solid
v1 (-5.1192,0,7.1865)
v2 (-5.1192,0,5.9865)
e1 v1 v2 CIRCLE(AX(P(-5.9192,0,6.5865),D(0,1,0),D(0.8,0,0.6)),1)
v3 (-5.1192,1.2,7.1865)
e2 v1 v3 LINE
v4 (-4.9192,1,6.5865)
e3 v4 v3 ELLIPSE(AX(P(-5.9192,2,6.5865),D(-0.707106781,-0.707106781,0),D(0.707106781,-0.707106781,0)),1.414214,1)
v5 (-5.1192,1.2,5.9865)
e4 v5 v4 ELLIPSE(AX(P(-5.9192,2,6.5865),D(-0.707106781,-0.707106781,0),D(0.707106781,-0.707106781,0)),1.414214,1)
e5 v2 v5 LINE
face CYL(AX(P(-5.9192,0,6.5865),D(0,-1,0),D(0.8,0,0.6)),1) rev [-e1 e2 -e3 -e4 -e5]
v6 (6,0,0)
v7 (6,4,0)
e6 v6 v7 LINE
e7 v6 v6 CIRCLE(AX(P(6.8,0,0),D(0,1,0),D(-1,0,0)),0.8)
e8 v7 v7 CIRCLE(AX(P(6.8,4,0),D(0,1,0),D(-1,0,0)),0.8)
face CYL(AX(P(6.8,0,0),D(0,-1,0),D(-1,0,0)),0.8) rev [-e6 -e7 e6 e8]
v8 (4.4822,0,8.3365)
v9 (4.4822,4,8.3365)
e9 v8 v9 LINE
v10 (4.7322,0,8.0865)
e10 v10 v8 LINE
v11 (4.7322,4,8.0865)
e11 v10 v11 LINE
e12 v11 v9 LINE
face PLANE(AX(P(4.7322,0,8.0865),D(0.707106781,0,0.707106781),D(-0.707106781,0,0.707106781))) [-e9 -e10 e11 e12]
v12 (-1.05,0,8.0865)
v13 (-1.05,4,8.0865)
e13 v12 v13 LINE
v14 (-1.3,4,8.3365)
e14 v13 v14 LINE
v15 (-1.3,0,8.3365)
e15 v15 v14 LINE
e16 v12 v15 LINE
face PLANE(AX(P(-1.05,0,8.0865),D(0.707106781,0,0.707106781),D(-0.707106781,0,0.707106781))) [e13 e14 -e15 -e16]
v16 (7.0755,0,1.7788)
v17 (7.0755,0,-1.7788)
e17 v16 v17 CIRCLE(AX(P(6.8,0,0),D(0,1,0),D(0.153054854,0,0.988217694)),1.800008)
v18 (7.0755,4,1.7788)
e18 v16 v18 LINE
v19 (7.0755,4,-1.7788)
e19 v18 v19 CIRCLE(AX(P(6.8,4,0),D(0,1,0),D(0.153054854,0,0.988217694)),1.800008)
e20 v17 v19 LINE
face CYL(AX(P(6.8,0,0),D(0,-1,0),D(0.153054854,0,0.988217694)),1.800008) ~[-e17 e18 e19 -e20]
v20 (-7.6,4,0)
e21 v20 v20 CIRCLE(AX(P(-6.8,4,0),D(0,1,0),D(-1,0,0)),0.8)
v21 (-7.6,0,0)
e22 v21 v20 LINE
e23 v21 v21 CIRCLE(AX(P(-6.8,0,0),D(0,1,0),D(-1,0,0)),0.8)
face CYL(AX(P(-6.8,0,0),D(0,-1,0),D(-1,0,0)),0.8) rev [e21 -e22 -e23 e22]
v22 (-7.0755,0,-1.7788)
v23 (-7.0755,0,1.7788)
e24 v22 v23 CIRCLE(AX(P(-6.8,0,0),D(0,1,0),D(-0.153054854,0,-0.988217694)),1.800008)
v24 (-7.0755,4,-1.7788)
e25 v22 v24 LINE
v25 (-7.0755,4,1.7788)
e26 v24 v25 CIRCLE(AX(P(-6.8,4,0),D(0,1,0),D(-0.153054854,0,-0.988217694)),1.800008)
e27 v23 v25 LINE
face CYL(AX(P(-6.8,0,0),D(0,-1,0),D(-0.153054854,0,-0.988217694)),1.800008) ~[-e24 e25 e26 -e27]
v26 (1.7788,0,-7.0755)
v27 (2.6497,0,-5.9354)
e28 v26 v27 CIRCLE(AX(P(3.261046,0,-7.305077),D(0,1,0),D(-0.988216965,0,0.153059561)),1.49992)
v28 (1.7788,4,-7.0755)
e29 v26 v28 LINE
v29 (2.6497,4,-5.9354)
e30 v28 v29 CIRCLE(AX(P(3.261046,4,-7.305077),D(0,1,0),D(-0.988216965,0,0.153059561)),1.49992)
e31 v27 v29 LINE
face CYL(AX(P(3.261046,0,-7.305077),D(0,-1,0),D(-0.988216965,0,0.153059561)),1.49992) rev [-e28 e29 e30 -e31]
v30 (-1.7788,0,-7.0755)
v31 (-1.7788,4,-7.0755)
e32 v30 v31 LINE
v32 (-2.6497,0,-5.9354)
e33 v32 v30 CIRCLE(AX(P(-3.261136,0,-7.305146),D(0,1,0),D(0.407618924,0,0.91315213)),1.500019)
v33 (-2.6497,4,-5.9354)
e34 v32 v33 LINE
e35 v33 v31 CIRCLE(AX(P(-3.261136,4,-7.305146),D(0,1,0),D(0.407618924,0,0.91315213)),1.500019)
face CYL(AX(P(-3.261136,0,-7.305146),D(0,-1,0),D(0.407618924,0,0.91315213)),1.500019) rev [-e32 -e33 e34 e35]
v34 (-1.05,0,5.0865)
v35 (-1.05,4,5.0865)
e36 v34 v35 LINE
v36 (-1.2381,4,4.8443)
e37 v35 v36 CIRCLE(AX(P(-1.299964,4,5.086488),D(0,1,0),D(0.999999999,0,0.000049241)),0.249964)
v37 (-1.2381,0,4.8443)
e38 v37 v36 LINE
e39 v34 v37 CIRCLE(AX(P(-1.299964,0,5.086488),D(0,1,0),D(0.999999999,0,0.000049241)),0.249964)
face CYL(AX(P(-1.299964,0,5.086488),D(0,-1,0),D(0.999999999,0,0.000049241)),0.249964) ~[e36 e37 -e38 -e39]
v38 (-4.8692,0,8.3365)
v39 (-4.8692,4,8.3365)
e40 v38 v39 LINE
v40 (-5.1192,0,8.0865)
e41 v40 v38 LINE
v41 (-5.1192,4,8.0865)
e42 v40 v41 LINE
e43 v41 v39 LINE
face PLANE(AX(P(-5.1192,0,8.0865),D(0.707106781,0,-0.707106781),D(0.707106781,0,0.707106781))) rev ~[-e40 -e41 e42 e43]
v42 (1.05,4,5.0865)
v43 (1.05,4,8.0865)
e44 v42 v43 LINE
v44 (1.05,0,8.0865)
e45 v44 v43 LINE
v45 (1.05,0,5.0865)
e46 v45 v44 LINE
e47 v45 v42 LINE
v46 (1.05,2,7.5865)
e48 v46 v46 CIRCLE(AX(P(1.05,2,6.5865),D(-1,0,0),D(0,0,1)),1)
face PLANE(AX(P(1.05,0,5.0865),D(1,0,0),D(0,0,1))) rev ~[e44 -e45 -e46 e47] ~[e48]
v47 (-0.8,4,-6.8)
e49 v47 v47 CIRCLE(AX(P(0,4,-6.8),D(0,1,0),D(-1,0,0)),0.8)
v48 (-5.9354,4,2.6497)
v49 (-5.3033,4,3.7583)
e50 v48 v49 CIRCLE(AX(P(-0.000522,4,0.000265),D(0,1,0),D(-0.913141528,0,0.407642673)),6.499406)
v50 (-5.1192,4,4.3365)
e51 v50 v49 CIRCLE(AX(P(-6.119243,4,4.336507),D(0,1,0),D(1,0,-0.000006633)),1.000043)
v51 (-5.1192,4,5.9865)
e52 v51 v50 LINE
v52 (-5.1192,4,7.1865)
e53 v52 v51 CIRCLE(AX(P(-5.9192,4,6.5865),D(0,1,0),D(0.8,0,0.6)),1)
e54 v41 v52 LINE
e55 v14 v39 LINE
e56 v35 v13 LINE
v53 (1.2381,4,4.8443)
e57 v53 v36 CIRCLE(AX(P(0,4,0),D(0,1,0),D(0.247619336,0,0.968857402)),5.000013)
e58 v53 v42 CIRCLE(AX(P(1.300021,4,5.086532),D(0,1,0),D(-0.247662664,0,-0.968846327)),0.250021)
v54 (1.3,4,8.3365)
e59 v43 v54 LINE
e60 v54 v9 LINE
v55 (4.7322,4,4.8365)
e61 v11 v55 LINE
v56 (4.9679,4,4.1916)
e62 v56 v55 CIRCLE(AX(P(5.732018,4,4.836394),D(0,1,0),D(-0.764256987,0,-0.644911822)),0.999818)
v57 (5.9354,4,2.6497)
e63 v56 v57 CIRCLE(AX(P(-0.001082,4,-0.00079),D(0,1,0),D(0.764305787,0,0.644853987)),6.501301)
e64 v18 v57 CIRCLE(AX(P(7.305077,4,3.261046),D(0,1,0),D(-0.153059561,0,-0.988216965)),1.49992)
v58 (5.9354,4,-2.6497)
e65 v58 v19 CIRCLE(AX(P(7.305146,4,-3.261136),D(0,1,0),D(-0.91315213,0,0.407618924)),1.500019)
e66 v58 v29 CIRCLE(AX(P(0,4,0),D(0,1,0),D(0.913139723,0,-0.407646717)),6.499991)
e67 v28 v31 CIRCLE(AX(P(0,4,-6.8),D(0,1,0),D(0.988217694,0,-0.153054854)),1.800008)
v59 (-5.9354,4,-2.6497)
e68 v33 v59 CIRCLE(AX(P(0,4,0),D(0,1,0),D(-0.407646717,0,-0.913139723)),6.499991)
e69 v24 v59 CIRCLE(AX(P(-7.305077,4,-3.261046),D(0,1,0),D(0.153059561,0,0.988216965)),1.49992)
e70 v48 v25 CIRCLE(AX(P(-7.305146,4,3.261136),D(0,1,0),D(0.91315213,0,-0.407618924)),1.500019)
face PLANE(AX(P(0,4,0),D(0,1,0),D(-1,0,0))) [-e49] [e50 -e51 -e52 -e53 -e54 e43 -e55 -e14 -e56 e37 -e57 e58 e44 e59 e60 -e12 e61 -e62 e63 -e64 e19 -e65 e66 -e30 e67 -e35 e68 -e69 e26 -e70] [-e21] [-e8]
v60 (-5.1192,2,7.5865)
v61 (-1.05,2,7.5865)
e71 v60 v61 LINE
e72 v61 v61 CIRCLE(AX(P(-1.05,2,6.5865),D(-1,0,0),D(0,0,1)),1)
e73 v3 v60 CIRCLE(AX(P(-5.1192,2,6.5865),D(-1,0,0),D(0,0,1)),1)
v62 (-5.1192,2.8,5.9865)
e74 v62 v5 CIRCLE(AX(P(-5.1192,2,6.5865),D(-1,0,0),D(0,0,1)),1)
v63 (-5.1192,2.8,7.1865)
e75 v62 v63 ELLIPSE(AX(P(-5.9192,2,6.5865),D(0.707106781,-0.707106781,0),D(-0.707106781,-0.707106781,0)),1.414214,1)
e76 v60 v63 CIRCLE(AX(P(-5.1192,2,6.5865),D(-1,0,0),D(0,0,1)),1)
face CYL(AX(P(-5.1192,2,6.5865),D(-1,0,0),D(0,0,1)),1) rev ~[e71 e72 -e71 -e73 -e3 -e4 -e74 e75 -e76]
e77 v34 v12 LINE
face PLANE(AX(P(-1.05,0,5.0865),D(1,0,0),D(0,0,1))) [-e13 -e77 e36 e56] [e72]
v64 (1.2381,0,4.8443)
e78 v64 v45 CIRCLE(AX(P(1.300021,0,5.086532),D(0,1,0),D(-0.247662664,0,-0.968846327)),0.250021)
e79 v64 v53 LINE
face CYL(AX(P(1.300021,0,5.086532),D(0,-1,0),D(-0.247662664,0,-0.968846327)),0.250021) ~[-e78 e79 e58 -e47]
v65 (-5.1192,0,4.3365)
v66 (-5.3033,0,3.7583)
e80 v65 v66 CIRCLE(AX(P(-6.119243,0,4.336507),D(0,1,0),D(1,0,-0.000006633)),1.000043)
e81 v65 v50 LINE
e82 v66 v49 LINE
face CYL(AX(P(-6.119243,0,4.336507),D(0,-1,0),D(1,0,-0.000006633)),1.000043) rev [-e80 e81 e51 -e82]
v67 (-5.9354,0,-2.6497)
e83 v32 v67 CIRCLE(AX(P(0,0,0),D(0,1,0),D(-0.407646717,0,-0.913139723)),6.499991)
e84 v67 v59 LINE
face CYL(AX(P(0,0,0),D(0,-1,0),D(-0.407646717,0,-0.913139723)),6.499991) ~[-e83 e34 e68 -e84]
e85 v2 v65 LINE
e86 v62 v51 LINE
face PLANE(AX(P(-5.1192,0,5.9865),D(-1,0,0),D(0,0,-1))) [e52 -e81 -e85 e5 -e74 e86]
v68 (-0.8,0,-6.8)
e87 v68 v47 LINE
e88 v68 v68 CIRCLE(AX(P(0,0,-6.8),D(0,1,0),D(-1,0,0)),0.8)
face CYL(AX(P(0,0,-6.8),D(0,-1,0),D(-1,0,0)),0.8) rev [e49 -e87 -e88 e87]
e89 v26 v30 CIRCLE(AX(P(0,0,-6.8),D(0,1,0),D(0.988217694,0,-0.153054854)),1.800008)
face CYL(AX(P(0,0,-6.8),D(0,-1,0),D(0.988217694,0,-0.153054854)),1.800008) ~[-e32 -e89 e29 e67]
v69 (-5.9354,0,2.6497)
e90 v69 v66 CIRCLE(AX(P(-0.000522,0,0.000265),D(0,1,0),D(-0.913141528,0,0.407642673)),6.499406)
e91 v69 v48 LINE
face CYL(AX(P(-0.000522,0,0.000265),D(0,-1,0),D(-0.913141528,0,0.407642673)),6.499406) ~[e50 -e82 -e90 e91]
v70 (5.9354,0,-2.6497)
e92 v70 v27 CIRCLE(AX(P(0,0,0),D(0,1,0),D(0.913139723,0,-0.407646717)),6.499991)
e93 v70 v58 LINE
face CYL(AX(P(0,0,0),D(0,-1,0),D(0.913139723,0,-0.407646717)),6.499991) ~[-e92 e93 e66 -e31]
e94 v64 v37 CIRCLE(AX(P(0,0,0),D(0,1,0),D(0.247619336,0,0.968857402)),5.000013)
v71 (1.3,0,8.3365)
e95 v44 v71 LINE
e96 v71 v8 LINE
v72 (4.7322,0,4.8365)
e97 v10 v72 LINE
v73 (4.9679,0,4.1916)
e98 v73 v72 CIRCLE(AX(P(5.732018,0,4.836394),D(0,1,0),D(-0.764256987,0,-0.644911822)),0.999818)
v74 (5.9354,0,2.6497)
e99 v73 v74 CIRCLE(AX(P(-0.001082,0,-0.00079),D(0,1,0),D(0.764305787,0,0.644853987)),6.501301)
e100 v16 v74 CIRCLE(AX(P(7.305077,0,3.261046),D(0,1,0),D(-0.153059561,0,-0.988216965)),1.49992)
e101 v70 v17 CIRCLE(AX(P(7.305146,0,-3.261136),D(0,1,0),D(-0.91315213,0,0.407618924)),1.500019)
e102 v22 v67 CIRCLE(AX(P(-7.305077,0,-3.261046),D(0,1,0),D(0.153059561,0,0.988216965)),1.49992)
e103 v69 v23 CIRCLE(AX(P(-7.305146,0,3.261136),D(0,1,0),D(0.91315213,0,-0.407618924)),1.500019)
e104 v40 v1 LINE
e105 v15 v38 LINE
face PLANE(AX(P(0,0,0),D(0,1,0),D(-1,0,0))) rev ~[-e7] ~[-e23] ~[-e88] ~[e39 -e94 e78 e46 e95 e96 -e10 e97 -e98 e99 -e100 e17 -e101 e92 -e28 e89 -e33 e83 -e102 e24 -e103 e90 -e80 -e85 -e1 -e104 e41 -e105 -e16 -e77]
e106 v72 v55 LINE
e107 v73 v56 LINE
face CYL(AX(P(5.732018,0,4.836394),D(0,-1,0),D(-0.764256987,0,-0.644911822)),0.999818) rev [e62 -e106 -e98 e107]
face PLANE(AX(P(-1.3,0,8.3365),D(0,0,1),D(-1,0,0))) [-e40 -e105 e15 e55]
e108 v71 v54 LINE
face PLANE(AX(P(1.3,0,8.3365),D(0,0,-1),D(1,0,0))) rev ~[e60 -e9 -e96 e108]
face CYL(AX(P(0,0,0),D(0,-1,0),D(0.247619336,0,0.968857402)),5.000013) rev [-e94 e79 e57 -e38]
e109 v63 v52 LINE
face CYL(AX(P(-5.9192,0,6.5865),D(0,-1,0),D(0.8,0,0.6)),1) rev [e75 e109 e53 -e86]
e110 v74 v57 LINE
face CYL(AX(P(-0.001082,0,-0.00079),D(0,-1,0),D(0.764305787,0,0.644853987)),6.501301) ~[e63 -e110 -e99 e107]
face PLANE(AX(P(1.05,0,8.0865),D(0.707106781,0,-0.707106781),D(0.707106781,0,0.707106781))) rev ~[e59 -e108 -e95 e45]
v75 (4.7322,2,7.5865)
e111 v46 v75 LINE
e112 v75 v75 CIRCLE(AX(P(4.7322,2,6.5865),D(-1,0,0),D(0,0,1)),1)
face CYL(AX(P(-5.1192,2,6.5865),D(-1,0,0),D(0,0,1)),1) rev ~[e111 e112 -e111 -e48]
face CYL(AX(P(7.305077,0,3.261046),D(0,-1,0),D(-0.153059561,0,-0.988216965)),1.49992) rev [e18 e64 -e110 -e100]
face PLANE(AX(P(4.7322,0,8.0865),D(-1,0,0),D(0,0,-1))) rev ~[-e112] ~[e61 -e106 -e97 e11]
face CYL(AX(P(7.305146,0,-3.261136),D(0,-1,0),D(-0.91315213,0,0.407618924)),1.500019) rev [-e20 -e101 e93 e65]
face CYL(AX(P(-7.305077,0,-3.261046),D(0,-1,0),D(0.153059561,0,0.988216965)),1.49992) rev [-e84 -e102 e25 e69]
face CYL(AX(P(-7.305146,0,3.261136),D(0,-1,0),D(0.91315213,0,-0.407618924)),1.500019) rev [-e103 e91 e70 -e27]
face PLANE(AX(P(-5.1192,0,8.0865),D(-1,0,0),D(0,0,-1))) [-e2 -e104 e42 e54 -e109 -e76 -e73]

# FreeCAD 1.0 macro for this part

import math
import FreeCAD as App
import Part
import Sketcher

V = App.Vector

doc = App.newDocument("Part")
body = doc.addObject("PartDesign::Body", "Body")

# Sketch on XZ plane
sketch1 = body.newObject("Sketcher::SketchObject", "Sketch")
sketch1.AttachmentSupport = (doc.getObject("XZ_Plane"), [""])
sketch1.MapMode = "FlatFace"
sketch1.addGeometry([
    Part.ArcOfCircle(Part.Circle(V(0, 0, 0), V(0, 0, 1), 5), math.radians(104), math.radians(436)),  # 0
    Part.ArcOfCircle(Part.Circle(V(1.3, 5.09, 0), V(0, 0, 1), 0.25), math.radians(180), math.radians(256)),  # 1
    Part.LineSegment(V(1.05, 5.09, 0), V(1.05, 8.09, 0)),  # 2
    Part.LineSegment(V(1.05, 8.09, 0), V(1.3, 8.34, 0)),  # 3
    Part.LineSegment(V(1.3, 8.34, 0), V(4.48, 8.34, 0)),  # 4
    Part.LineSegment(V(4.48, 8.34, 0), V(4.73, 8.09, 0)),  # 5
    Part.LineSegment(V(4.73, 8.09, 0), V(4.73, 4.84, 0)),  # 6
    Part.ArcOfCircle(Part.Circle(V(5.73, 4.84, 0), V(0, 0, 1), 1), math.radians(180), math.radians(220)),  # 7
    Part.ArcOfCircle(Part.Circle(V(0, 0, 0), V(0, 0, 1), 6.5), math.radians(24.06), math.radians(40.15)),  # 8
    Part.ArcOfCircle(Part.Circle(V(7.31, 3.26, 0), V(0, 0, 1), 1.5), math.radians(-156), math.radians(-99)),  # 9
    Part.ArcOfCircle(Part.Circle(V(6.8, 0, 0), V(0, 0, 1), 1.8), math.radians(-81), math.radians(81)),  # 10
    Part.ArcOfCircle(Part.Circle(V(7.31, -3.26, 0), V(0, 0, 1), 1.5), math.radians(99), math.radians(156)),  # 11
    Part.ArcOfCircle(Part.Circle(V(0, 0, 0), V(0, 0, 1), 6.5), math.radians(-66), math.radians(-24)),  # 12
    Part.ArcOfCircle(Part.Circle(V(3.26, -7.31, 0), V(0, 0, 1), 1.5), math.radians(114), math.radians(171)),  # 13
    Part.ArcOfCircle(Part.Circle(V(0, -6.8, 0), V(0, 0, 1), 1.8), math.radians(-171), math.radians(-9)),  # 14
    Part.ArcOfCircle(Part.Circle(V(-3.26, -7.31, 0), V(0, 0, 1), 1.5), math.radians(9), math.radians(66)),  # 15
    Part.ArcOfCircle(Part.Circle(V(0, 0, 0), V(0, 0, 1), 6.5), math.radians(-156), math.radians(-114)),  # 16
    Part.ArcOfCircle(Part.Circle(V(-7.31, -3.26, 0), V(0, 0, 1), 1.5), math.radians(24), math.radians(81)),  # 17
    Part.ArcOfCircle(Part.Circle(V(-6.8, 0, 0), V(0, 0, 1), 1.8), math.radians(99), math.radians(261)),  # 18
    Part.ArcOfCircle(Part.Circle(V(-7.31, 3.26, 0), V(0, 0, 1), 1.5), math.radians(-81), math.radians(-24)),  # 19
    Part.ArcOfCircle(Part.Circle(V(0, 0, 0), V(0, 0, 1), 6.5), math.radians(144.68), math.radians(155.94)),  # 20
    Part.ArcOfCircle(Part.Circle(V(-6.12, 4.34, 0), V(0, 0, 1), 1), math.radians(-35), math.radians(0)),  # 21
    Part.LineSegment(V(-5.12, 4.34, 0), V(-5.12, 5.99, 0)),  # 22
    Part.ArcOfCircle(Part.Circle(V(-5.92, 6.59, 0), V(0, 0, 1), 1), math.radians(-37), math.radians(37)),  # 23
    Part.LineSegment(V(-5.12, 7.19, 0), V(-5.12, 8.09, 0)),  # 24
    Part.LineSegment(V(-5.12, 8.09, 0), V(-4.87, 8.34, 0)),  # 25
    Part.LineSegment(V(-4.87, 8.34, 0), V(-1.3, 8.34, 0)),  # 26
    Part.LineSegment(V(-1.3, 8.34, 0), V(-1.05, 8.09, 0)),  # 27
    Part.LineSegment(V(-1.05, 8.09, 0), V(-1.05, 5.09, 0)),  # 28
    Part.ArcOfCircle(Part.Circle(V(-1.3, 5.09, 0), V(0, 0, 1), 0.25), math.radians(-76), math.radians(0)),  # 29
    Part.Circle(V(0, -6.8, 0), V(0, 0, 1), 0.8),  # 30
    Part.Circle(V(6.8, 0, 0), V(0, 0, 1), 0.8),  # 31
    Part.Circle(V(-6.8, 0, 0), V(0, 0, 1), 0.8),  # 32
], False)
sketch1.addConstraint([
    Sketcher.Constraint("Tangent", 0, 2, 1, 2),
    Sketcher.Constraint("Tangent", 1, 1, 2, 1),
    Sketcher.Constraint("Coincident", 2, 2, 3, 1),
    Sketcher.Constraint("Coincident", 3, 2, 4, 1),
    Sketcher.Constraint("Coincident", 4, 2, 5, 1),
    Sketcher.Constraint("Coincident", 5, 2, 6, 1),
    Sketcher.Constraint("Tangent", 6, 2, 7, 1),
    Sketcher.Constraint("Tangent", 7, 2, 8, 2),
    Sketcher.Constraint("Tangent", 8, 1, 9, 1),
    Sketcher.Constraint("Tangent", 9, 2, 10, 2),
    Sketcher.Constraint("Tangent", 10, 1, 11, 1),
    Sketcher.Constraint("Tangent", 11, 2, 12, 2),
    Sketcher.Constraint("Tangent", 12, 1, 13, 1),
    Sketcher.Constraint("Tangent", 13, 2, 14, 2),
    Sketcher.Constraint("Tangent", 14, 1, 15, 1),
    Sketcher.Constraint("Tangent", 15, 2, 16, 2),
    Sketcher.Constraint("Tangent", 16, 1, 17, 1),
    Sketcher.Constraint("Tangent", 17, 2, 18, 2),
    Sketcher.Constraint("Tangent", 18, 1, 19, 1),
    Sketcher.Constraint("Tangent", 19, 2, 20, 2),
    Sketcher.Constraint("Tangent", 20, 1, 21, 1),
    Sketcher.Constraint("Tangent", 21, 2, 22, 1),
    Sketcher.Constraint("Coincident", 22, 2, 23, 1),
    Sketcher.Constraint("Coincident", 23, 2, 24, 1),
    Sketcher.Constraint("Coincident", 24, 2, 25, 1),
    Sketcher.Constraint("Coincident", 25, 2, 26, 1),
    Sketcher.Constraint("Coincident", 26, 2, 27, 1),
    Sketcher.Constraint("Coincident", 27, 2, 28, 1),
    Sketcher.Constraint("Tangent", 28, 2, 29, 2),
    Sketcher.Constraint("Tangent", 29, 1, 0, 1),
    Sketcher.Constraint("Vertical", 2),
    Sketcher.Constraint("Horizontal", 4),
    Sketcher.Constraint("Vertical", 6),
    Sketcher.Constraint("Vertical", 22),
    Sketcher.Constraint("Vertical", 24),
    Sketcher.Constraint("Horizontal", 26),
    Sketcher.Constraint("Vertical", 28),
    Sketcher.Constraint("Coincident", 0, 3, -1, 1),
    Sketcher.Constraint("Coincident", 12, 3, -1, 1),
    Sketcher.Constraint("Coincident", 16, 3, -1, 1),
    Sketcher.Constraint("Coincident", 20, 3, -1, 1),
    Sketcher.Constraint("Coincident", 30, 3, 14, 3),
    Sketcher.Constraint("Coincident", 31, 3, 10, 3),
    Sketcher.Constraint("Coincident", 32, 3, 18, 3),
    Sketcher.Constraint("Equal", 9, 11),
    Sketcher.Constraint("Equal", 11, 13),
    Sketcher.Constraint("Equal", 10, 14),
    Sketcher.Constraint("Equal", 13, 15),
    Sketcher.Constraint("Equal", 12, 16),
    Sketcher.Constraint("Equal", 15, 17),
    Sketcher.Constraint("Equal", 14, 18),
    Sketcher.Constraint("Equal", 17, 19),
    Sketcher.Constraint("Equal", 16, 20),
    Sketcher.Constraint("Equal", 7, 21),
    Sketcher.Constraint("Equal", 21, 23),
    Sketcher.Constraint("Equal", 1, 29),
    Sketcher.Constraint("Equal", 30, 31),
    Sketcher.Constraint("Equal", 31, 32),
    Sketcher.Constraint("Symmetric", 9, 3, 17, 3, -1, 1),
    Sketcher.Constraint("Symmetric", 10, 3, 18, 3, -2),
    Sketcher.Constraint("Symmetric", 3, 2, 26, 2, -2),
    Sketcher.Constraint("Symmetric", 2, 2, 27, 2, -2),
    Sketcher.Constraint("PointOnObject", 14, 3, -2),
    Sketcher.Constraint("Perpendicular", 3, 5),
    Sketcher.Constraint("Perpendicular", 5, 25),
    Sketcher.Constraint("Perpendicular", 25, 27),
    Sketcher.Constraint("Horizontal", 2, 2, 5, 2),
    Sketcher.Constraint("Horizontal", 8, 1, 19, 2),
    Sketcher.Constraint("Horizontal", 5, 2, 24, 2),
    Sketcher.Constraint("Vertical", 1, 3, 3, 2),
    Sketcher.Constraint("Vertical", 22, 2, 23, 2),
    Sketcher.Constraint("Radius", 0, 5.0),
    Sketcher.Constraint("Radius", 7, 1.0),
    Sketcher.Constraint("Diameter", 30, 1.6),
    Sketcher.Constraint("Radius", 9, 1.5),
    Sketcher.Constraint("Radius", 10, 1.8),
    Sketcher.Constraint("Radius", 12, 6.5),
    Sketcher.Constraint("DistanceY", 2, 1, 2, 2, 3.0),
    Sketcher.Constraint("Radius", 1, 0.25),
    Sketcher.Constraint("DistanceY", 21, 2, 25, 2, 4.0),
    Sketcher.Constraint("DistanceY", 1, 3, 23, 3, 1.5),
    Sketcher.Constraint("DistanceY", 7, 3, 4, 2, 3.5),
    Sketcher.Constraint("DistanceX", 23, 3, 21, 2, 0.8),
    Sketcher.Constraint("DistanceX", 27, 2, 2, 2, 2.1),
    Sketcher.Constraint("DistanceX", -1, 1, 10, 3, 6.8),
    Sketcher.Constraint("DistanceY", 14, 3, -1, 1, 6.8),
    Sketcher.Constraint("Radius", 8, 6.5013),
])
pad1 = body.newObject("PartDesign::Pad", "Pad")
pad1.Profile = sketch1
pad1.Length = 4
pad1.Reversed = True

# Sketch on YZ plane
sketch2 = body.newObject("Sketcher::SketchObject", "Sketch001")
sketch2.AttachmentSupport = (doc.getObject("YZ_Plane"), [""])
sketch2.MapMode = "FlatFace"
sketch2.AttachmentOffset = App.Placement(V(0, 0, -5.1192), App.Rotation())
sketch2.addGeometry(Part.Circle(V(2, 6.6, 0), V(0, 0, 1), 1), False)
sketch2.addConstraint([
    Sketcher.Constraint("Diameter", 0, 2.0),
    Sketcher.Constraint("DistanceX", -1, 1, 0, 3, 2.0),
    Sketcher.Constraint("DistanceY", -1, 1, 0, 3, 6.5865),
])
pocket1 = body.newObject("PartDesign::Pocket", "Pocket")
pocket1.Profile = sketch2
pocket1.Length = 10
pocket1.Reversed = True

doc.recompute()
